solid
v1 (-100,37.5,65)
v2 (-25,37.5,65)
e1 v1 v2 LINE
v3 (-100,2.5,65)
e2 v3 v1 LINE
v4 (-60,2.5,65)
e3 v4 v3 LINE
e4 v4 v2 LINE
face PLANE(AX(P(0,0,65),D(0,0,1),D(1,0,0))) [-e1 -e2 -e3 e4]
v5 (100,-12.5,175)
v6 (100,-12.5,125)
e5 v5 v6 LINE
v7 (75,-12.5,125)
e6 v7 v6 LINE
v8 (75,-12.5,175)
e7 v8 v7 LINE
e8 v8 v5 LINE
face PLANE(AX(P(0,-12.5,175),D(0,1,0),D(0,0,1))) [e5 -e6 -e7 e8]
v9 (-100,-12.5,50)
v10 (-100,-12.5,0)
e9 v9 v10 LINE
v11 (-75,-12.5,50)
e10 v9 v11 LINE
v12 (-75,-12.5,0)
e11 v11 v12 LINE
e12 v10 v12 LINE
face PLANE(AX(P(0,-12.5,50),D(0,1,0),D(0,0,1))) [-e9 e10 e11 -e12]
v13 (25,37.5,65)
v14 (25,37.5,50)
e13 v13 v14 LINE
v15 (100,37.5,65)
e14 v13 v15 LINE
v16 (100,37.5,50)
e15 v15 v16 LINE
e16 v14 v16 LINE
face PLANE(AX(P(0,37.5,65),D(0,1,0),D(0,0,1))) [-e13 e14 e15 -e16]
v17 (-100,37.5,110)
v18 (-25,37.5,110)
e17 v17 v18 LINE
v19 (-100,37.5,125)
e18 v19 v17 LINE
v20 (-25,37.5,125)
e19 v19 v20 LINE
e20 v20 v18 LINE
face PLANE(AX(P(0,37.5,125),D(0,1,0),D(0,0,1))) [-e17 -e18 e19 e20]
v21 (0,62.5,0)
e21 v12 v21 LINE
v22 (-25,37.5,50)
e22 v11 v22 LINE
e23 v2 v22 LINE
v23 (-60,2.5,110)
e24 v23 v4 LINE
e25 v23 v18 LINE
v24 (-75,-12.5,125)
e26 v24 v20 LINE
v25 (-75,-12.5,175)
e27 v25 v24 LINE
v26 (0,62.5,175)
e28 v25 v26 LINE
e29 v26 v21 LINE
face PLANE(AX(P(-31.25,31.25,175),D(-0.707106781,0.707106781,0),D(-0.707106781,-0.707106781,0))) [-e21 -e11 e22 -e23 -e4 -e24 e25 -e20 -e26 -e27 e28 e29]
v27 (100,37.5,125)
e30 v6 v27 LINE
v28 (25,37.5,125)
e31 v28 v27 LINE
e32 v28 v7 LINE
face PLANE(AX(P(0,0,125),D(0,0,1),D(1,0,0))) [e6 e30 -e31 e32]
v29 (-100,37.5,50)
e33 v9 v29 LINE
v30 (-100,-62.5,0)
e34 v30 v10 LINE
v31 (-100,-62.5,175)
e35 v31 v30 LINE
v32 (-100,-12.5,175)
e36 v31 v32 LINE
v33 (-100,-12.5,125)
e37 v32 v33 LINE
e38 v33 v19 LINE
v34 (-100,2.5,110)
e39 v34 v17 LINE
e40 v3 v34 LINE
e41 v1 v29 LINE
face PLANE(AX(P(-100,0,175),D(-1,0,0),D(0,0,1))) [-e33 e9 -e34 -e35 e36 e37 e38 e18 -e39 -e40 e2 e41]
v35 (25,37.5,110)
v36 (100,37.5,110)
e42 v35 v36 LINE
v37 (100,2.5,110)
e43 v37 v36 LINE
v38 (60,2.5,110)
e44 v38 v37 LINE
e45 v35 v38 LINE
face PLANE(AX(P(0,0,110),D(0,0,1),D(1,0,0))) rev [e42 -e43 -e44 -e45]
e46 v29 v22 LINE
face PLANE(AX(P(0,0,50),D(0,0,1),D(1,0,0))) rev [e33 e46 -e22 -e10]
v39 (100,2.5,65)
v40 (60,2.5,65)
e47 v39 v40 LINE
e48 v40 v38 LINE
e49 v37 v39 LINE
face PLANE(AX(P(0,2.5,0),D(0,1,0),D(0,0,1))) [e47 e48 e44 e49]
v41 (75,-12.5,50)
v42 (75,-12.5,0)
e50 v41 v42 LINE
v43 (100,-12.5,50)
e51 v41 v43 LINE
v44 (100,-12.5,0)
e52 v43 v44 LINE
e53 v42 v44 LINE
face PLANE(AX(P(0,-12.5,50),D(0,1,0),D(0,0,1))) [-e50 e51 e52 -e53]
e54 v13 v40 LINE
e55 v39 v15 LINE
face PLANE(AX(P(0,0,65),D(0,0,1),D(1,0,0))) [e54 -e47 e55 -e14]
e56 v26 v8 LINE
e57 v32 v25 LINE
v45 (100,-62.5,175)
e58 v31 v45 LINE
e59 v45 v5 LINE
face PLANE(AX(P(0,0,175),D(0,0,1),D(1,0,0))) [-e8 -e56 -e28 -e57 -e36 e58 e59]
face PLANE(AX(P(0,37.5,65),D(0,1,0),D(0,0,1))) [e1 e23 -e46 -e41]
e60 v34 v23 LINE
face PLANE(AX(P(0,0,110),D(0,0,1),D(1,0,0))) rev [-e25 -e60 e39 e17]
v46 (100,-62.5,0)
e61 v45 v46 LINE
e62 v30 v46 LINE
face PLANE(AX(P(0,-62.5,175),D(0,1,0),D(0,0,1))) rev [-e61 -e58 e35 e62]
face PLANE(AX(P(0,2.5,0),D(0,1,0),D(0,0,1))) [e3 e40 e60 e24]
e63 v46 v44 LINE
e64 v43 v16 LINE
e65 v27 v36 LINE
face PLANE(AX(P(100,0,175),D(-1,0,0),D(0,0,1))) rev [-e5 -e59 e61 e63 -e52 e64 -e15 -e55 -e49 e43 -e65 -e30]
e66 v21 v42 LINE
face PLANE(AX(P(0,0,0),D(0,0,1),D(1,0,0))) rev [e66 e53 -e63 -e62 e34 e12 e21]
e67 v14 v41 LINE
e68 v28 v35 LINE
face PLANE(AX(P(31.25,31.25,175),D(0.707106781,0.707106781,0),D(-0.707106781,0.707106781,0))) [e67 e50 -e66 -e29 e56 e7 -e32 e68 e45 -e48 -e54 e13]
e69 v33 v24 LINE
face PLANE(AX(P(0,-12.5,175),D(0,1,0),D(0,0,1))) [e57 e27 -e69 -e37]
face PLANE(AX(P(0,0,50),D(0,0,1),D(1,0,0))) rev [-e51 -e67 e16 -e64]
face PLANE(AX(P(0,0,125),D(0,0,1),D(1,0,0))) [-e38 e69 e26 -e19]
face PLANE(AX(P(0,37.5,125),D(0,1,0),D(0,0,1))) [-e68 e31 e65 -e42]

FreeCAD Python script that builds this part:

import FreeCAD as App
import Part
import Sketcher

V = App.Vector
Q = App.Units.Quantity

doc = App.newDocument("Part")
body = doc.addObject("PartDesign::Body", "Body")

sketch1 = body.newObject("Sketcher::SketchObject", "Sketch")
sketch1.AttachmentSupport = (doc.getObject("XY_Plane"), [""])
sketch1.MapMode = "FlatFace"
sketch1.addGeometry(Part.LineSegment(V(-100, -62.5, 0), V(100, -62.5, 0)), False)
sketch1.addGeometry(Part.LineSegment(V(100, -62.5, 0), V(100, 62.5, 0)), False)
sketch1.addGeometry(Part.LineSegment(V(100, 62.5, 0), V(-100, 62.5, 0)), False)
sketch1.addGeometry(Part.LineSegment(V(-100, 62.5, 0), V(-100, -62.5, 0)), False)
sketch1.addConstraint(Sketcher.Constraint("Coincident", 0, 2, 1, 1))
sketch1.addConstraint(Sketcher.Constraint("Coincident", 1, 2, 2, 1))
sketch1.addConstraint(Sketcher.Constraint("Coincident", 2, 2, 3, 1))
sketch1.addConstraint(Sketcher.Constraint("Coincident", 3, 2, 0, 1))
sketch1.addConstraint(Sketcher.Constraint("Horizontal", 0))
sketch1.addConstraint(Sketcher.Constraint("Vertical", 1))
sketch1.addConstraint(Sketcher.Constraint("Horizontal", 2))
sketch1.addConstraint(Sketcher.Constraint("Vertical", 3))
sketch1.addConstraint(Sketcher.Constraint("Symmetric", 0, 2, 2, 2, -1, 1))
sketch1.addConstraint(Sketcher.Constraint("DistanceX", 0, 1, 0, 2, Q("200 mm")))
sketch1.addConstraint(Sketcher.Constraint("DistanceY", 1, 1, 1, 2, Q("125 mm")))
pad1 = body.newObject("PartDesign::Pad", "Pad")
pad1.Profile = sketch1
pad1.Length = 175

sketch2 = body.newObject("Sketcher::SketchObject", "Sketch001")
sketch2.AttachmentSupport = (doc.getObject("XY_Plane"), [""])
sketch2.MapMode = "FlatFace"
sketch2.addGeometry(Part.LineSegment(V(0, 62.5, 0), V(25, 37.5, 0)), False)
sketch2.addGeometry(Part.LineSegment(V(25, 37.5, 0), V(100, 37.5, 0)), False)
sketch2.addGeometry(Part.LineSegment(V(100, 37.5, 0), V(100, 62.5, 0)), False)
sketch2.addGeometry(Part.LineSegment(V(100, 62.5, 0), V(0, 62.5, 0)), False)
sketch2.addGeometry(Part.LineSegment(V(-100, 62.5, 0), V(-100, 37.5, 0)), False)
sketch2.addGeometry(Part.LineSegment(V(-100, 37.5, 0), V(-25, 37.5, 0)), False)
sketch2.addGeometry(Part.LineSegment(V(-25, 37.5, 0), V(0, 62.5, 0)), False)
sketch2.addGeometry(Part.LineSegment(V(0, 62.5, 0), V(-100, 62.5, 0)), False)
sketch2.addConstraint(Sketcher.Constraint("Coincident", 0, 2, 1, 1))
sketch2.addConstraint(Sketcher.Constraint("Coincident", 1, 2, 2, 1))
sketch2.addConstraint(Sketcher.Constraint("Coincident", 2, 2, 3, 1))
sketch2.addConstraint(Sketcher.Constraint("Coincident", 3, 2, 0, 1))
sketch2.addConstraint(Sketcher.Constraint("Coincident", 4, 2, 5, 1))
sketch2.addConstraint(Sketcher.Constraint("Coincident", 5, 2, 6, 1))
sketch2.addConstraint(Sketcher.Constraint("Coincident", 6, 2, 7, 1))
sketch2.addConstraint(Sketcher.Constraint("Coincident", 7, 2, 4, 1))
sketch2.addConstraint(Sketcher.Constraint("Horizontal", 1))
sketch2.addConstraint(Sketcher.Constraint("Vertical", 2))
sketch2.addConstraint(Sketcher.Constraint("Horizontal", 3))
sketch2.addConstraint(Sketcher.Constraint("Vertical", 4))
sketch2.addConstraint(Sketcher.Constraint("Horizontal", 5))
sketch2.addConstraint(Sketcher.Constraint("Horizontal", 7))
sketch2.addConstraint(Sketcher.Constraint("Coincident", 6, 2, 3, 2))
sketch2.addConstraint(Sketcher.Constraint("Symmetric", 1, 2, 4, 2, -2))
sketch2.addConstraint(Sketcher.Constraint("PointOnObject", 3, 2, -2))
sketch2.addConstraint(Sketcher.Constraint("Perpendicular", 0, 6))
sketch2.addConstraint(Sketcher.Constraint("Equal", 1, 5))
sketch2.addConstraint(Sketcher.Constraint("DistanceX", 1, 1, 1, 2, Q("75 mm")))
sketch2.addConstraint(Sketcher.Constraint("DistanceX", 3, 2, 3, 1, Q("100 mm")))
sketch2.addConstraint(Sketcher.Constraint("DistanceY", -1, 1, 0, 2, Q("37.5 mm")))
pocket1 = body.newObject("PartDesign::Pocket", "Pocket")
pocket1.Profile = sketch2
pocket1.Type = "ThroughAll"
pocket1.Reversed = True

sketch3 = body.newObject("Sketcher::SketchObject", "Sketch002")
sketch3.AttachmentSupport = (doc.getObject("XY_Plane"), [""])
sketch3.MapMode = "FlatFace"
sketch3.addGeometry(Part.LineSegment(V(-100, 37.5, 0), V(-100, -12.5, 0)), False)
sketch3.addGeometry(Part.LineSegment(V(-100, -12.5, 0), V(-75, -12.5, 0)), False)
sketch3.addGeometry(Part.LineSegment(V(-75, -12.5, 0), V(-25, 37.5, 0)), False)
sketch3.addGeometry(Part.LineSegment(V(-25, 37.5, 0), V(-100, 37.5, 0)), False)
sketch3.addGeometry(Part.LineSegment(V(25, 37.5, 0), V(75, -12.5, 0)), False)
sketch3.addGeometry(Part.LineSegment(V(75, -12.5, 0), V(100, -12.5, 0)), False)
sketch3.addGeometry(Part.LineSegment(V(100, -12.5, 0), V(100, 37.5, 0)), False)
sketch3.addGeometry(Part.LineSegment(V(100, 37.5, 0), V(25, 37.5, 0)), False)
sketch3.addConstraint(Sketcher.Constraint("Coincident", 0, 2, 1, 1))
sketch3.addConstraint(Sketcher.Constraint("Coincident", 1, 2, 2, 1))
sketch3.addConstraint(Sketcher.Constraint("Coincident", 2, 2, 3, 1))
sketch3.addConstraint(Sketcher.Constraint("Coincident", 3, 2, 0, 1))
sketch3.addConstraint(Sketcher.Constraint("Coincident", 4, 2, 5, 1))
sketch3.addConstraint(Sketcher.Constraint("Coincident", 5, 2, 6, 1))
sketch3.addConstraint(Sketcher.Constraint("Coincident", 6, 2, 7, 1))
sketch3.addConstraint(Sketcher.Constraint("Coincident", 7, 2, 4, 1))
sketch3.addConstraint(Sketcher.Constraint("Vertical", 0))
sketch3.addConstraint(Sketcher.Constraint("Horizontal", 1))
sketch3.addConstraint(Sketcher.Constraint("Horizontal", 3))
sketch3.addConstraint(Sketcher.Constraint("Horizontal", 5))
sketch3.addConstraint(Sketcher.Constraint("Vertical", 6))
sketch3.addConstraint(Sketcher.Constraint("Horizontal", 7))
sketch3.addConstraint(Sketcher.Constraint("Symmetric", 1, 2, 4, 2, -2))
sketch3.addConstraint(Sketcher.Constraint("Symmetric", 3, 2, 6, 2, -2))
sketch3.addConstraint(Sketcher.Constraint("Perpendicular", 2, 4))
sketch3.addConstraint(Sketcher.Constraint("Equal", 3, 7))
sketch3.addConstraint(Sketcher.Constraint("DistanceX", 1, 1, 1, 2, Q("25 mm")))
sketch3.addConstraint(Sketcher.Constraint("DistanceX", 3, 2, 3, 1, Q("75 mm")))
sketch3.addConstraint(Sketcher.Constraint("DistanceX", 0, 2, -1, 1, Q("100 mm")))
sketch3.addConstraint(Sketcher.Constraint("DistanceY", 0, 2, -1, 1, Q("12.5 mm")))
pocket2 = body.newObject("PartDesign::Pocket", "Pocket001")
pocket2.Profile = sketch3
pocket2.Type = "ThroughAll"
pocket2.Reversed = True

sketch4 = body.newObject("Sketcher::SketchObject", "Sketch003")
sketch4.AttachmentSupport = (doc.getObject("XY_Plane"), [""])
sketch4.MapMode = "FlatFace"
sketch4.addGeometry(Part.LineSegment(V(-100, 37.5, 0), V(-100, -12.5, 0)), False)
sketch4.addGeometry(Part.LineSegment(V(-100, -12.5, 0), V(-75, -12.5, 0)), False)
sketch4.addGeometry(Part.LineSegment(V(-75, -12.5, 0), V(-25, 37.5, 0)), False)
sketch4.addGeometry(Part.LineSegment(V(-25, 37.5, 0), V(-100, 37.5, 0)), False)
sketch4.addGeometry(Part.LineSegment(V(25, 37.5, 0), V(75, -12.5, 0)), False)
sketch4.addGeometry(Part.LineSegment(V(75, -12.5, 0), V(100, -12.5, 0)), False)
sketch4.addGeometry(Part.LineSegment(V(100, -12.5, 0), V(100, 37.5, 0)), False)
sketch4.addGeometry(Part.LineSegment(V(100, 37.5, 0), V(25, 37.5, 0)), False)
sketch4.addConstraint(Sketcher.Constraint("Coincident", 0, 2, 1, 1))
sketch4.addConstraint(Sketcher.Constraint("Coincident", 1, 2, 2, 1))
sketch4.addConstraint(Sketcher.Constraint("Coincident", 2, 2, 3, 1))
sketch4.addConstraint(Sketcher.Constraint("Coincident", 3, 2, 0, 1))
sketch4.addConstraint(Sketcher.Constraint("Coincident", 4, 2, 5, 1))
sketch4.addConstraint(Sketcher.Constraint("Coincident", 5, 2, 6, 1))
sketch4.addConstraint(Sketcher.Constraint("Coincident", 6, 2, 7, 1))
sketch4.addConstraint(Sketcher.Constraint("Coincident", 7, 2, 4, 1))
sketch4.addConstraint(Sketcher.Constraint("Vertical", 0))
sketch4.addConstraint(Sketcher.Constraint("Horizontal", 1))
sketch4.addConstraint(Sketcher.Constraint("Horizontal", 3))
sketch4.addConstraint(Sketcher.Constraint("Horizontal", 5))
sketch4.addConstraint(Sketcher.Constraint("Vertical", 6))
sketch4.addConstraint(Sketcher.Constraint("Horizontal", 7))
sketch4.addConstraint(Sketcher.Constraint("Symmetric", 1, 2, 4, 2, -2))
sketch4.addConstraint(Sketcher.Constraint("Symmetric", 3, 2, 6, 2, -2))
sketch4.addConstraint(Sketcher.Constraint("Perpendicular", 2, 4))
sketch4.addConstraint(Sketcher.Constraint("Equal", 3, 7))
sketch4.addConstraint(Sketcher.Constraint("DistanceX", 1, 1, 1, 2, Q("25 mm")))
sketch4.addConstraint(Sketcher.Constraint("DistanceX", 3, 2, 3, 1, Q("75 mm")))
sketch4.addConstraint(Sketcher.Constraint("DistanceX", 0, 2, -1, 1, Q("100 mm")))
sketch4.addConstraint(Sketcher.Constraint("DistanceY", 0, 2, -1, 1, Q("12.5 mm")))
pad2 = body.newObject("PartDesign::Pad", "Pad001")
pad2.Profile = sketch4
pad2.Length = 125

sketch5 = body.newObject("Sketcher::SketchObject", "Sketch004")
sketch5.AttachmentSupport = (doc.getObject("XY_Plane"), [""])
sketch5.MapMode = "FlatFace"
sketch5.addGeometry(Part.LineSegment(V(-100, 37.5, 0), V(-100, -12.5, 0)), False)
sketch5.addGeometry(Part.LineSegment(V(-100, -12.5, 0), V(-75, -12.5, 0)), False)
sketch5.addGeometry(Part.LineSegment(V(-75, -12.5, 0), V(-25, 37.5, 0)), False)
sketch5.addGeometry(Part.LineSegment(V(-25, 37.5, 0), V(-100, 37.5, 0)), False)
sketch5.addGeometry(Part.LineSegment(V(25, 37.5, 0), V(75, -12.5, 0)), False)
sketch5.addGeometry(Part.LineSegment(V(75, -12.5, 0), V(100, -12.5, 0)), False)
sketch5.addGeometry(Part.LineSegment(V(100, -12.5, 0), V(100, 37.5, 0)), False)
sketch5.addGeometry(Part.LineSegment(V(100, 37.5, 0), V(25, 37.5, 0)), False)
sketch5.addConstraint(Sketcher.Constraint("Coincident", 0, 2, 1, 1))
sketch5.addConstraint(Sketcher.Constraint("Coincident", 1, 2, 2, 1))
sketch5.addConstraint(Sketcher.Constraint("Coincident", 2, 2, 3, 1))
sketch5.addConstraint(Sketcher.Constraint("Coincident", 3, 2, 0, 1))
sketch5.addConstraint(Sketcher.Constraint("Coincident", 4, 2, 5, 1))
sketch5.addConstraint(Sketcher.Constraint("Coincident", 5, 2, 6, 1))
sketch5.addConstraint(Sketcher.Constraint("Coincident", 6, 2, 7, 1))
sketch5.addConstraint(Sketcher.Constraint("Coincident", 7, 2, 4, 1))
sketch5.addConstraint(Sketcher.Constraint("Vertical", 0))
sketch5.addConstraint(Sketcher.Constraint("Horizontal", 1))
sketch5.addConstraint(Sketcher.Constraint("Horizontal", 3))
sketch5.addConstraint(Sketcher.Constraint("Horizontal", 5))
sketch5.addConstraint(Sketcher.Constraint("Vertical", 6))
sketch5.addConstraint(Sketcher.Constraint("Horizontal", 7))
sketch5.addConstraint(Sketcher.Constraint("Symmetric", 1, 2, 4, 2, -2))
sketch5.addConstraint(Sketcher.Constraint("Symmetric", 3, 2, 6, 2, -2))
sketch5.addConstraint(Sketcher.Constraint("Perpendicular", 2, 4))
sketch5.addConstraint(Sketcher.Constraint("Equal", 3, 7))
sketch5.addConstraint(Sketcher.Constraint("DistanceX", 1, 1, 1, 2, Q("25 mm")))
sketch5.addConstraint(Sketcher.Constraint("DistanceX", 3, 2, 3, 1, Q("75 mm")))
sketch5.addConstraint(Sketcher.Constraint("DistanceX", 0, 2, -1, 1, Q("100 mm")))
sketch5.addConstraint(Sketcher.Constraint("DistanceY", 0, 2, -1, 1, Q("12.5 mm")))
pocket3 = body.newObject("PartDesign::Pocket", "Pocket002")
pocket3.Profile = sketch5
pocket3.Length = 110
pocket3.Reversed = True

sketch6 = body.newObject("Sketcher::SketchObject", "Sketch005")
sketch6.AttachmentSupport = (doc.getObject("XY_Plane"), [""])
sketch6.MapMode = "FlatFace"
sketch6.addGeometry(Part.LineSegment(V(25, 37.5, 0), V(75, -12.5, 0)), False)
sketch6.addGeometry(Part.LineSegment(V(75, -12.5, 0), V(100, -12.5, 0)), False)
sketch6.addGeometry(Part.LineSegment(V(100, -12.5, 0), V(100, 37.5, 0)), False)
sketch6.addGeometry(Part.LineSegment(V(100, 37.5, 0), V(25, 37.5, 0)), False)
sketch6.addGeometry(Part.LineSegment(V(-100, 37.5, 0), V(-100, -12.5, 0)), False)
sketch6.addGeometry(Part.LineSegment(V(-100, -12.5, 0), V(-75, -12.5, 0)), False)
sketch6.addGeometry(Part.LineSegment(V(-75, -12.5, 0), V(-25, 37.5, 0)), False)
sketch6.addGeometry(Part.LineSegment(V(-25, 37.5, 0), V(-100, 37.5, 0)), False)
sketch6.addConstraint(Sketcher.Constraint("Coincident", 0, 2, 1, 1))
sketch6.addConstraint(Sketcher.Constraint("Coincident", 1, 2, 2, 1))
sketch6.addConstraint(Sketcher.Constraint("Coincident", 2, 2, 3, 1))
sketch6.addConstraint(Sketcher.Constraint("Coincident", 3, 2, 0, 1))
sketch6.addConstraint(Sketcher.Constraint("Coincident", 4, 2, 5, 1))
sketch6.addConstraint(Sketcher.Constraint("Coincident", 5, 2, 6, 1))
sketch6.addConstraint(Sketcher.Constraint("Coincident", 6, 2, 7, 1))
sketch6.addConstraint(Sketcher.Constraint("Coincident", 7, 2, 4, 1))
sketch6.addConstraint(Sketcher.Constraint("Horizontal", 1))
sketch6.addConstraint(Sketcher.Constraint("Vertical", 2))
sketch6.addConstraint(Sketcher.Constraint("Horizontal", 3))
sketch6.addConstraint(Sketcher.Constraint("Vertical", 4))
sketch6.addConstraint(Sketcher.Constraint("Horizontal", 5))
sketch6.addConstraint(Sketcher.Constraint("Horizontal", 7))
sketch6.addConstraint(Sketcher.Constraint("Symmetric", 1, 2, 4, 2, -2))
sketch6.addConstraint(Sketcher.Constraint("Symmetric", 3, 2, 6, 2, -2))
sketch6.addConstraint(Sketcher.Constraint("Perpendicular", 0, 6))
sketch6.addConstraint(Sketcher.Constraint("Equal", 1, 5))
sketch6.addConstraint(Sketcher.Constraint("DistanceX", 1, 1, 1, 2, Q("25 mm")))
sketch6.addConstraint(Sketcher.Constraint("DistanceX", 3, 2, 3, 1, Q("75 mm")))
sketch6.addConstraint(Sketcher.Constraint("DistanceX", -1, 1, 0, 2, Q("75 mm")))
sketch6.addConstraint(Sketcher.Constraint("DistanceY", 0, 2, -1, 1, Q("12.5 mm")))
pad3 = body.newObject("PartDesign::Pad", "Pad002")
pad3.Profile = sketch6
pad3.Length = 65

sketch7 = body.newObject("Sketcher::SketchObject", "Sketch006")
sketch7.AttachmentSupport = (doc.getObject("XY_Plane"), [""])
sketch7.MapMode = "FlatFace"
sketch7.addGeometry(Part.LineSegment(V(25, 37.5, 0), V(75, -12.5, 0)), False)
sketch7.addGeometry(Part.LineSegment(V(75, -12.5, 0), V(100, -12.5, 0)), False)
sketch7.addGeometry(Part.LineSegment(V(100, -12.5, 0), V(100, 37.5, 0)), False)
sketch7.addGeometry(Part.LineSegment(V(100, 37.5, 0), V(25, 37.5, 0)), False)
sketch7.addGeometry(Part.LineSegment(V(-100, 37.5, 0), V(-100, -12.5, 0)), False)
sketch7.addGeometry(Part.LineSegment(V(-100, -12.5, 0), V(-75, -12.5, 0)), False)
sketch7.addGeometry(Part.LineSegment(V(-75, -12.5, 0), V(-25, 37.5, 0)), False)
sketch7.addGeometry(Part.LineSegment(V(-25, 37.5, 0), V(-100, 37.5, 0)), False)
sketch7.addConstraint(Sketcher.Constraint("Coincident", 0, 2, 1, 1))
sketch7.addConstraint(Sketcher.Constraint("Coincident", 1, 2, 2, 1))
sketch7.addConstraint(Sketcher.Constraint("Coincident", 2, 2, 3, 1))
sketch7.addConstraint(Sketcher.Constraint("Coincident", 3, 2, 0, 1))
sketch7.addConstraint(Sketcher.Constraint("Coincident", 4, 2, 5, 1))
sketch7.addConstraint(Sketcher.Constraint("Coincident", 5, 2, 6, 1))
sketch7.addConstraint(Sketcher.Constraint("Coincident", 6, 2, 7, 1))
sketch7.addConstraint(Sketcher.Constraint("Coincident", 7, 2, 4, 1))
sketch7.addConstraint(Sketcher.Constraint("Horizontal", 1))
sketch7.addConstraint(Sketcher.Constraint("Vertical", 2))
sketch7.addConstraint(Sketcher.Constraint("Horizontal", 3))
sketch7.addConstraint(Sketcher.Constraint("Vertical", 4))
sketch7.addConstraint(Sketcher.Constraint("Horizontal", 5))
sketch7.addConstraint(Sketcher.Constraint("Horizontal", 7))
sketch7.addConstraint(Sketcher.Constraint("Symmetric", 1, 2, 4, 2, -2))
sketch7.addConstraint(Sketcher.Constraint("Symmetric", 3, 2, 6, 2, -2))
sketch7.addConstraint(Sketcher.Constraint("Perpendicular", 0, 6))
sketch7.addConstraint(Sketcher.Constraint("Equal", 1, 5))
sketch7.addConstraint(Sketcher.Constraint("DistanceX", 1, 1, 1, 2, Q("25 mm")))
sketch7.addConstraint(Sketcher.Constraint("DistanceX", 3, 2, 3, 1, Q("75 mm")))
sketch7.addConstraint(Sketcher.Constraint("DistanceX", -1, 1, 0, 2, Q("75 mm")))
sketch7.addConstraint(Sketcher.Constraint("DistanceY", 0, 2, -1, 1, Q("12.5 mm")))
pocket4 = body.newObject("PartDesign::Pocket", "Pocket003")
pocket4.Profile = sketch7
pocket4.Length = 50
pocket4.Reversed = True

sketch8 = body.newObject("Sketcher::SketchObject", "Sketch007")
sketch8.AttachmentSupport = (doc.getObject("XZ_Plane"), [""])
sketch8.MapMode = "FlatFace"
sketch8.AttachmentOffset = App.Placement(V(0, 0, 12.5), App.Rotation())
sketch8.addGeometry(Part.LineSegment(V(-100, 65, 0), V(-100, 110, 0)), False)
sketch8.addGeometry(Part.LineSegment(V(-100, 110, 0), V(100, 110, 0)), False)
sketch8.addGeometry(Part.LineSegment(V(100, 110, 0), V(100, 65, 0)), False)
sketch8.addGeometry(Part.LineSegment(V(100, 65, 0), V(-100, 65, 0)), False)
sketch8.addConstraint(Sketcher.Constraint("Coincident", 0, 2, 1, 1))
sketch8.addConstraint(Sketcher.Constraint("Coincident", 1, 2, 2, 1))
sketch8.addConstraint(Sketcher.Constraint("Coincident", 2, 2, 3, 1))
sketch8.addConstraint(Sketcher.Constraint("Coincident", 3, 2, 0, 1))
sketch8.addConstraint(Sketcher.Constraint("Vertical", 0))
sketch8.addConstraint(Sketcher.Constraint("Horizontal", 1))
sketch8.addConstraint(Sketcher.Constraint("Vertical", 2))
sketch8.addConstraint(Sketcher.Constraint("Horizontal", 3))
sketch8.addConstraint(Sketcher.Constraint("DistanceX", 1, 1, 1, 2, Q("200 mm")))
sketch8.addConstraint(Sketcher.Constraint("DistanceY", 0, 1, 0, 2, Q("45 mm")))
sketch8.addConstraint(Sketcher.Constraint("DistanceX", 0, 2, -1, 1, Q("100 mm")))
sketch8.addConstraint(Sketcher.Constraint("DistanceY", -1, 1, 0, 2, Q("110 mm")))
pad4 = body.newObject("PartDesign::Pad", "Pad003")
pad4.Profile = sketch8
pad4.Length = 15
pad4.Reversed = True

doc.recompute()
